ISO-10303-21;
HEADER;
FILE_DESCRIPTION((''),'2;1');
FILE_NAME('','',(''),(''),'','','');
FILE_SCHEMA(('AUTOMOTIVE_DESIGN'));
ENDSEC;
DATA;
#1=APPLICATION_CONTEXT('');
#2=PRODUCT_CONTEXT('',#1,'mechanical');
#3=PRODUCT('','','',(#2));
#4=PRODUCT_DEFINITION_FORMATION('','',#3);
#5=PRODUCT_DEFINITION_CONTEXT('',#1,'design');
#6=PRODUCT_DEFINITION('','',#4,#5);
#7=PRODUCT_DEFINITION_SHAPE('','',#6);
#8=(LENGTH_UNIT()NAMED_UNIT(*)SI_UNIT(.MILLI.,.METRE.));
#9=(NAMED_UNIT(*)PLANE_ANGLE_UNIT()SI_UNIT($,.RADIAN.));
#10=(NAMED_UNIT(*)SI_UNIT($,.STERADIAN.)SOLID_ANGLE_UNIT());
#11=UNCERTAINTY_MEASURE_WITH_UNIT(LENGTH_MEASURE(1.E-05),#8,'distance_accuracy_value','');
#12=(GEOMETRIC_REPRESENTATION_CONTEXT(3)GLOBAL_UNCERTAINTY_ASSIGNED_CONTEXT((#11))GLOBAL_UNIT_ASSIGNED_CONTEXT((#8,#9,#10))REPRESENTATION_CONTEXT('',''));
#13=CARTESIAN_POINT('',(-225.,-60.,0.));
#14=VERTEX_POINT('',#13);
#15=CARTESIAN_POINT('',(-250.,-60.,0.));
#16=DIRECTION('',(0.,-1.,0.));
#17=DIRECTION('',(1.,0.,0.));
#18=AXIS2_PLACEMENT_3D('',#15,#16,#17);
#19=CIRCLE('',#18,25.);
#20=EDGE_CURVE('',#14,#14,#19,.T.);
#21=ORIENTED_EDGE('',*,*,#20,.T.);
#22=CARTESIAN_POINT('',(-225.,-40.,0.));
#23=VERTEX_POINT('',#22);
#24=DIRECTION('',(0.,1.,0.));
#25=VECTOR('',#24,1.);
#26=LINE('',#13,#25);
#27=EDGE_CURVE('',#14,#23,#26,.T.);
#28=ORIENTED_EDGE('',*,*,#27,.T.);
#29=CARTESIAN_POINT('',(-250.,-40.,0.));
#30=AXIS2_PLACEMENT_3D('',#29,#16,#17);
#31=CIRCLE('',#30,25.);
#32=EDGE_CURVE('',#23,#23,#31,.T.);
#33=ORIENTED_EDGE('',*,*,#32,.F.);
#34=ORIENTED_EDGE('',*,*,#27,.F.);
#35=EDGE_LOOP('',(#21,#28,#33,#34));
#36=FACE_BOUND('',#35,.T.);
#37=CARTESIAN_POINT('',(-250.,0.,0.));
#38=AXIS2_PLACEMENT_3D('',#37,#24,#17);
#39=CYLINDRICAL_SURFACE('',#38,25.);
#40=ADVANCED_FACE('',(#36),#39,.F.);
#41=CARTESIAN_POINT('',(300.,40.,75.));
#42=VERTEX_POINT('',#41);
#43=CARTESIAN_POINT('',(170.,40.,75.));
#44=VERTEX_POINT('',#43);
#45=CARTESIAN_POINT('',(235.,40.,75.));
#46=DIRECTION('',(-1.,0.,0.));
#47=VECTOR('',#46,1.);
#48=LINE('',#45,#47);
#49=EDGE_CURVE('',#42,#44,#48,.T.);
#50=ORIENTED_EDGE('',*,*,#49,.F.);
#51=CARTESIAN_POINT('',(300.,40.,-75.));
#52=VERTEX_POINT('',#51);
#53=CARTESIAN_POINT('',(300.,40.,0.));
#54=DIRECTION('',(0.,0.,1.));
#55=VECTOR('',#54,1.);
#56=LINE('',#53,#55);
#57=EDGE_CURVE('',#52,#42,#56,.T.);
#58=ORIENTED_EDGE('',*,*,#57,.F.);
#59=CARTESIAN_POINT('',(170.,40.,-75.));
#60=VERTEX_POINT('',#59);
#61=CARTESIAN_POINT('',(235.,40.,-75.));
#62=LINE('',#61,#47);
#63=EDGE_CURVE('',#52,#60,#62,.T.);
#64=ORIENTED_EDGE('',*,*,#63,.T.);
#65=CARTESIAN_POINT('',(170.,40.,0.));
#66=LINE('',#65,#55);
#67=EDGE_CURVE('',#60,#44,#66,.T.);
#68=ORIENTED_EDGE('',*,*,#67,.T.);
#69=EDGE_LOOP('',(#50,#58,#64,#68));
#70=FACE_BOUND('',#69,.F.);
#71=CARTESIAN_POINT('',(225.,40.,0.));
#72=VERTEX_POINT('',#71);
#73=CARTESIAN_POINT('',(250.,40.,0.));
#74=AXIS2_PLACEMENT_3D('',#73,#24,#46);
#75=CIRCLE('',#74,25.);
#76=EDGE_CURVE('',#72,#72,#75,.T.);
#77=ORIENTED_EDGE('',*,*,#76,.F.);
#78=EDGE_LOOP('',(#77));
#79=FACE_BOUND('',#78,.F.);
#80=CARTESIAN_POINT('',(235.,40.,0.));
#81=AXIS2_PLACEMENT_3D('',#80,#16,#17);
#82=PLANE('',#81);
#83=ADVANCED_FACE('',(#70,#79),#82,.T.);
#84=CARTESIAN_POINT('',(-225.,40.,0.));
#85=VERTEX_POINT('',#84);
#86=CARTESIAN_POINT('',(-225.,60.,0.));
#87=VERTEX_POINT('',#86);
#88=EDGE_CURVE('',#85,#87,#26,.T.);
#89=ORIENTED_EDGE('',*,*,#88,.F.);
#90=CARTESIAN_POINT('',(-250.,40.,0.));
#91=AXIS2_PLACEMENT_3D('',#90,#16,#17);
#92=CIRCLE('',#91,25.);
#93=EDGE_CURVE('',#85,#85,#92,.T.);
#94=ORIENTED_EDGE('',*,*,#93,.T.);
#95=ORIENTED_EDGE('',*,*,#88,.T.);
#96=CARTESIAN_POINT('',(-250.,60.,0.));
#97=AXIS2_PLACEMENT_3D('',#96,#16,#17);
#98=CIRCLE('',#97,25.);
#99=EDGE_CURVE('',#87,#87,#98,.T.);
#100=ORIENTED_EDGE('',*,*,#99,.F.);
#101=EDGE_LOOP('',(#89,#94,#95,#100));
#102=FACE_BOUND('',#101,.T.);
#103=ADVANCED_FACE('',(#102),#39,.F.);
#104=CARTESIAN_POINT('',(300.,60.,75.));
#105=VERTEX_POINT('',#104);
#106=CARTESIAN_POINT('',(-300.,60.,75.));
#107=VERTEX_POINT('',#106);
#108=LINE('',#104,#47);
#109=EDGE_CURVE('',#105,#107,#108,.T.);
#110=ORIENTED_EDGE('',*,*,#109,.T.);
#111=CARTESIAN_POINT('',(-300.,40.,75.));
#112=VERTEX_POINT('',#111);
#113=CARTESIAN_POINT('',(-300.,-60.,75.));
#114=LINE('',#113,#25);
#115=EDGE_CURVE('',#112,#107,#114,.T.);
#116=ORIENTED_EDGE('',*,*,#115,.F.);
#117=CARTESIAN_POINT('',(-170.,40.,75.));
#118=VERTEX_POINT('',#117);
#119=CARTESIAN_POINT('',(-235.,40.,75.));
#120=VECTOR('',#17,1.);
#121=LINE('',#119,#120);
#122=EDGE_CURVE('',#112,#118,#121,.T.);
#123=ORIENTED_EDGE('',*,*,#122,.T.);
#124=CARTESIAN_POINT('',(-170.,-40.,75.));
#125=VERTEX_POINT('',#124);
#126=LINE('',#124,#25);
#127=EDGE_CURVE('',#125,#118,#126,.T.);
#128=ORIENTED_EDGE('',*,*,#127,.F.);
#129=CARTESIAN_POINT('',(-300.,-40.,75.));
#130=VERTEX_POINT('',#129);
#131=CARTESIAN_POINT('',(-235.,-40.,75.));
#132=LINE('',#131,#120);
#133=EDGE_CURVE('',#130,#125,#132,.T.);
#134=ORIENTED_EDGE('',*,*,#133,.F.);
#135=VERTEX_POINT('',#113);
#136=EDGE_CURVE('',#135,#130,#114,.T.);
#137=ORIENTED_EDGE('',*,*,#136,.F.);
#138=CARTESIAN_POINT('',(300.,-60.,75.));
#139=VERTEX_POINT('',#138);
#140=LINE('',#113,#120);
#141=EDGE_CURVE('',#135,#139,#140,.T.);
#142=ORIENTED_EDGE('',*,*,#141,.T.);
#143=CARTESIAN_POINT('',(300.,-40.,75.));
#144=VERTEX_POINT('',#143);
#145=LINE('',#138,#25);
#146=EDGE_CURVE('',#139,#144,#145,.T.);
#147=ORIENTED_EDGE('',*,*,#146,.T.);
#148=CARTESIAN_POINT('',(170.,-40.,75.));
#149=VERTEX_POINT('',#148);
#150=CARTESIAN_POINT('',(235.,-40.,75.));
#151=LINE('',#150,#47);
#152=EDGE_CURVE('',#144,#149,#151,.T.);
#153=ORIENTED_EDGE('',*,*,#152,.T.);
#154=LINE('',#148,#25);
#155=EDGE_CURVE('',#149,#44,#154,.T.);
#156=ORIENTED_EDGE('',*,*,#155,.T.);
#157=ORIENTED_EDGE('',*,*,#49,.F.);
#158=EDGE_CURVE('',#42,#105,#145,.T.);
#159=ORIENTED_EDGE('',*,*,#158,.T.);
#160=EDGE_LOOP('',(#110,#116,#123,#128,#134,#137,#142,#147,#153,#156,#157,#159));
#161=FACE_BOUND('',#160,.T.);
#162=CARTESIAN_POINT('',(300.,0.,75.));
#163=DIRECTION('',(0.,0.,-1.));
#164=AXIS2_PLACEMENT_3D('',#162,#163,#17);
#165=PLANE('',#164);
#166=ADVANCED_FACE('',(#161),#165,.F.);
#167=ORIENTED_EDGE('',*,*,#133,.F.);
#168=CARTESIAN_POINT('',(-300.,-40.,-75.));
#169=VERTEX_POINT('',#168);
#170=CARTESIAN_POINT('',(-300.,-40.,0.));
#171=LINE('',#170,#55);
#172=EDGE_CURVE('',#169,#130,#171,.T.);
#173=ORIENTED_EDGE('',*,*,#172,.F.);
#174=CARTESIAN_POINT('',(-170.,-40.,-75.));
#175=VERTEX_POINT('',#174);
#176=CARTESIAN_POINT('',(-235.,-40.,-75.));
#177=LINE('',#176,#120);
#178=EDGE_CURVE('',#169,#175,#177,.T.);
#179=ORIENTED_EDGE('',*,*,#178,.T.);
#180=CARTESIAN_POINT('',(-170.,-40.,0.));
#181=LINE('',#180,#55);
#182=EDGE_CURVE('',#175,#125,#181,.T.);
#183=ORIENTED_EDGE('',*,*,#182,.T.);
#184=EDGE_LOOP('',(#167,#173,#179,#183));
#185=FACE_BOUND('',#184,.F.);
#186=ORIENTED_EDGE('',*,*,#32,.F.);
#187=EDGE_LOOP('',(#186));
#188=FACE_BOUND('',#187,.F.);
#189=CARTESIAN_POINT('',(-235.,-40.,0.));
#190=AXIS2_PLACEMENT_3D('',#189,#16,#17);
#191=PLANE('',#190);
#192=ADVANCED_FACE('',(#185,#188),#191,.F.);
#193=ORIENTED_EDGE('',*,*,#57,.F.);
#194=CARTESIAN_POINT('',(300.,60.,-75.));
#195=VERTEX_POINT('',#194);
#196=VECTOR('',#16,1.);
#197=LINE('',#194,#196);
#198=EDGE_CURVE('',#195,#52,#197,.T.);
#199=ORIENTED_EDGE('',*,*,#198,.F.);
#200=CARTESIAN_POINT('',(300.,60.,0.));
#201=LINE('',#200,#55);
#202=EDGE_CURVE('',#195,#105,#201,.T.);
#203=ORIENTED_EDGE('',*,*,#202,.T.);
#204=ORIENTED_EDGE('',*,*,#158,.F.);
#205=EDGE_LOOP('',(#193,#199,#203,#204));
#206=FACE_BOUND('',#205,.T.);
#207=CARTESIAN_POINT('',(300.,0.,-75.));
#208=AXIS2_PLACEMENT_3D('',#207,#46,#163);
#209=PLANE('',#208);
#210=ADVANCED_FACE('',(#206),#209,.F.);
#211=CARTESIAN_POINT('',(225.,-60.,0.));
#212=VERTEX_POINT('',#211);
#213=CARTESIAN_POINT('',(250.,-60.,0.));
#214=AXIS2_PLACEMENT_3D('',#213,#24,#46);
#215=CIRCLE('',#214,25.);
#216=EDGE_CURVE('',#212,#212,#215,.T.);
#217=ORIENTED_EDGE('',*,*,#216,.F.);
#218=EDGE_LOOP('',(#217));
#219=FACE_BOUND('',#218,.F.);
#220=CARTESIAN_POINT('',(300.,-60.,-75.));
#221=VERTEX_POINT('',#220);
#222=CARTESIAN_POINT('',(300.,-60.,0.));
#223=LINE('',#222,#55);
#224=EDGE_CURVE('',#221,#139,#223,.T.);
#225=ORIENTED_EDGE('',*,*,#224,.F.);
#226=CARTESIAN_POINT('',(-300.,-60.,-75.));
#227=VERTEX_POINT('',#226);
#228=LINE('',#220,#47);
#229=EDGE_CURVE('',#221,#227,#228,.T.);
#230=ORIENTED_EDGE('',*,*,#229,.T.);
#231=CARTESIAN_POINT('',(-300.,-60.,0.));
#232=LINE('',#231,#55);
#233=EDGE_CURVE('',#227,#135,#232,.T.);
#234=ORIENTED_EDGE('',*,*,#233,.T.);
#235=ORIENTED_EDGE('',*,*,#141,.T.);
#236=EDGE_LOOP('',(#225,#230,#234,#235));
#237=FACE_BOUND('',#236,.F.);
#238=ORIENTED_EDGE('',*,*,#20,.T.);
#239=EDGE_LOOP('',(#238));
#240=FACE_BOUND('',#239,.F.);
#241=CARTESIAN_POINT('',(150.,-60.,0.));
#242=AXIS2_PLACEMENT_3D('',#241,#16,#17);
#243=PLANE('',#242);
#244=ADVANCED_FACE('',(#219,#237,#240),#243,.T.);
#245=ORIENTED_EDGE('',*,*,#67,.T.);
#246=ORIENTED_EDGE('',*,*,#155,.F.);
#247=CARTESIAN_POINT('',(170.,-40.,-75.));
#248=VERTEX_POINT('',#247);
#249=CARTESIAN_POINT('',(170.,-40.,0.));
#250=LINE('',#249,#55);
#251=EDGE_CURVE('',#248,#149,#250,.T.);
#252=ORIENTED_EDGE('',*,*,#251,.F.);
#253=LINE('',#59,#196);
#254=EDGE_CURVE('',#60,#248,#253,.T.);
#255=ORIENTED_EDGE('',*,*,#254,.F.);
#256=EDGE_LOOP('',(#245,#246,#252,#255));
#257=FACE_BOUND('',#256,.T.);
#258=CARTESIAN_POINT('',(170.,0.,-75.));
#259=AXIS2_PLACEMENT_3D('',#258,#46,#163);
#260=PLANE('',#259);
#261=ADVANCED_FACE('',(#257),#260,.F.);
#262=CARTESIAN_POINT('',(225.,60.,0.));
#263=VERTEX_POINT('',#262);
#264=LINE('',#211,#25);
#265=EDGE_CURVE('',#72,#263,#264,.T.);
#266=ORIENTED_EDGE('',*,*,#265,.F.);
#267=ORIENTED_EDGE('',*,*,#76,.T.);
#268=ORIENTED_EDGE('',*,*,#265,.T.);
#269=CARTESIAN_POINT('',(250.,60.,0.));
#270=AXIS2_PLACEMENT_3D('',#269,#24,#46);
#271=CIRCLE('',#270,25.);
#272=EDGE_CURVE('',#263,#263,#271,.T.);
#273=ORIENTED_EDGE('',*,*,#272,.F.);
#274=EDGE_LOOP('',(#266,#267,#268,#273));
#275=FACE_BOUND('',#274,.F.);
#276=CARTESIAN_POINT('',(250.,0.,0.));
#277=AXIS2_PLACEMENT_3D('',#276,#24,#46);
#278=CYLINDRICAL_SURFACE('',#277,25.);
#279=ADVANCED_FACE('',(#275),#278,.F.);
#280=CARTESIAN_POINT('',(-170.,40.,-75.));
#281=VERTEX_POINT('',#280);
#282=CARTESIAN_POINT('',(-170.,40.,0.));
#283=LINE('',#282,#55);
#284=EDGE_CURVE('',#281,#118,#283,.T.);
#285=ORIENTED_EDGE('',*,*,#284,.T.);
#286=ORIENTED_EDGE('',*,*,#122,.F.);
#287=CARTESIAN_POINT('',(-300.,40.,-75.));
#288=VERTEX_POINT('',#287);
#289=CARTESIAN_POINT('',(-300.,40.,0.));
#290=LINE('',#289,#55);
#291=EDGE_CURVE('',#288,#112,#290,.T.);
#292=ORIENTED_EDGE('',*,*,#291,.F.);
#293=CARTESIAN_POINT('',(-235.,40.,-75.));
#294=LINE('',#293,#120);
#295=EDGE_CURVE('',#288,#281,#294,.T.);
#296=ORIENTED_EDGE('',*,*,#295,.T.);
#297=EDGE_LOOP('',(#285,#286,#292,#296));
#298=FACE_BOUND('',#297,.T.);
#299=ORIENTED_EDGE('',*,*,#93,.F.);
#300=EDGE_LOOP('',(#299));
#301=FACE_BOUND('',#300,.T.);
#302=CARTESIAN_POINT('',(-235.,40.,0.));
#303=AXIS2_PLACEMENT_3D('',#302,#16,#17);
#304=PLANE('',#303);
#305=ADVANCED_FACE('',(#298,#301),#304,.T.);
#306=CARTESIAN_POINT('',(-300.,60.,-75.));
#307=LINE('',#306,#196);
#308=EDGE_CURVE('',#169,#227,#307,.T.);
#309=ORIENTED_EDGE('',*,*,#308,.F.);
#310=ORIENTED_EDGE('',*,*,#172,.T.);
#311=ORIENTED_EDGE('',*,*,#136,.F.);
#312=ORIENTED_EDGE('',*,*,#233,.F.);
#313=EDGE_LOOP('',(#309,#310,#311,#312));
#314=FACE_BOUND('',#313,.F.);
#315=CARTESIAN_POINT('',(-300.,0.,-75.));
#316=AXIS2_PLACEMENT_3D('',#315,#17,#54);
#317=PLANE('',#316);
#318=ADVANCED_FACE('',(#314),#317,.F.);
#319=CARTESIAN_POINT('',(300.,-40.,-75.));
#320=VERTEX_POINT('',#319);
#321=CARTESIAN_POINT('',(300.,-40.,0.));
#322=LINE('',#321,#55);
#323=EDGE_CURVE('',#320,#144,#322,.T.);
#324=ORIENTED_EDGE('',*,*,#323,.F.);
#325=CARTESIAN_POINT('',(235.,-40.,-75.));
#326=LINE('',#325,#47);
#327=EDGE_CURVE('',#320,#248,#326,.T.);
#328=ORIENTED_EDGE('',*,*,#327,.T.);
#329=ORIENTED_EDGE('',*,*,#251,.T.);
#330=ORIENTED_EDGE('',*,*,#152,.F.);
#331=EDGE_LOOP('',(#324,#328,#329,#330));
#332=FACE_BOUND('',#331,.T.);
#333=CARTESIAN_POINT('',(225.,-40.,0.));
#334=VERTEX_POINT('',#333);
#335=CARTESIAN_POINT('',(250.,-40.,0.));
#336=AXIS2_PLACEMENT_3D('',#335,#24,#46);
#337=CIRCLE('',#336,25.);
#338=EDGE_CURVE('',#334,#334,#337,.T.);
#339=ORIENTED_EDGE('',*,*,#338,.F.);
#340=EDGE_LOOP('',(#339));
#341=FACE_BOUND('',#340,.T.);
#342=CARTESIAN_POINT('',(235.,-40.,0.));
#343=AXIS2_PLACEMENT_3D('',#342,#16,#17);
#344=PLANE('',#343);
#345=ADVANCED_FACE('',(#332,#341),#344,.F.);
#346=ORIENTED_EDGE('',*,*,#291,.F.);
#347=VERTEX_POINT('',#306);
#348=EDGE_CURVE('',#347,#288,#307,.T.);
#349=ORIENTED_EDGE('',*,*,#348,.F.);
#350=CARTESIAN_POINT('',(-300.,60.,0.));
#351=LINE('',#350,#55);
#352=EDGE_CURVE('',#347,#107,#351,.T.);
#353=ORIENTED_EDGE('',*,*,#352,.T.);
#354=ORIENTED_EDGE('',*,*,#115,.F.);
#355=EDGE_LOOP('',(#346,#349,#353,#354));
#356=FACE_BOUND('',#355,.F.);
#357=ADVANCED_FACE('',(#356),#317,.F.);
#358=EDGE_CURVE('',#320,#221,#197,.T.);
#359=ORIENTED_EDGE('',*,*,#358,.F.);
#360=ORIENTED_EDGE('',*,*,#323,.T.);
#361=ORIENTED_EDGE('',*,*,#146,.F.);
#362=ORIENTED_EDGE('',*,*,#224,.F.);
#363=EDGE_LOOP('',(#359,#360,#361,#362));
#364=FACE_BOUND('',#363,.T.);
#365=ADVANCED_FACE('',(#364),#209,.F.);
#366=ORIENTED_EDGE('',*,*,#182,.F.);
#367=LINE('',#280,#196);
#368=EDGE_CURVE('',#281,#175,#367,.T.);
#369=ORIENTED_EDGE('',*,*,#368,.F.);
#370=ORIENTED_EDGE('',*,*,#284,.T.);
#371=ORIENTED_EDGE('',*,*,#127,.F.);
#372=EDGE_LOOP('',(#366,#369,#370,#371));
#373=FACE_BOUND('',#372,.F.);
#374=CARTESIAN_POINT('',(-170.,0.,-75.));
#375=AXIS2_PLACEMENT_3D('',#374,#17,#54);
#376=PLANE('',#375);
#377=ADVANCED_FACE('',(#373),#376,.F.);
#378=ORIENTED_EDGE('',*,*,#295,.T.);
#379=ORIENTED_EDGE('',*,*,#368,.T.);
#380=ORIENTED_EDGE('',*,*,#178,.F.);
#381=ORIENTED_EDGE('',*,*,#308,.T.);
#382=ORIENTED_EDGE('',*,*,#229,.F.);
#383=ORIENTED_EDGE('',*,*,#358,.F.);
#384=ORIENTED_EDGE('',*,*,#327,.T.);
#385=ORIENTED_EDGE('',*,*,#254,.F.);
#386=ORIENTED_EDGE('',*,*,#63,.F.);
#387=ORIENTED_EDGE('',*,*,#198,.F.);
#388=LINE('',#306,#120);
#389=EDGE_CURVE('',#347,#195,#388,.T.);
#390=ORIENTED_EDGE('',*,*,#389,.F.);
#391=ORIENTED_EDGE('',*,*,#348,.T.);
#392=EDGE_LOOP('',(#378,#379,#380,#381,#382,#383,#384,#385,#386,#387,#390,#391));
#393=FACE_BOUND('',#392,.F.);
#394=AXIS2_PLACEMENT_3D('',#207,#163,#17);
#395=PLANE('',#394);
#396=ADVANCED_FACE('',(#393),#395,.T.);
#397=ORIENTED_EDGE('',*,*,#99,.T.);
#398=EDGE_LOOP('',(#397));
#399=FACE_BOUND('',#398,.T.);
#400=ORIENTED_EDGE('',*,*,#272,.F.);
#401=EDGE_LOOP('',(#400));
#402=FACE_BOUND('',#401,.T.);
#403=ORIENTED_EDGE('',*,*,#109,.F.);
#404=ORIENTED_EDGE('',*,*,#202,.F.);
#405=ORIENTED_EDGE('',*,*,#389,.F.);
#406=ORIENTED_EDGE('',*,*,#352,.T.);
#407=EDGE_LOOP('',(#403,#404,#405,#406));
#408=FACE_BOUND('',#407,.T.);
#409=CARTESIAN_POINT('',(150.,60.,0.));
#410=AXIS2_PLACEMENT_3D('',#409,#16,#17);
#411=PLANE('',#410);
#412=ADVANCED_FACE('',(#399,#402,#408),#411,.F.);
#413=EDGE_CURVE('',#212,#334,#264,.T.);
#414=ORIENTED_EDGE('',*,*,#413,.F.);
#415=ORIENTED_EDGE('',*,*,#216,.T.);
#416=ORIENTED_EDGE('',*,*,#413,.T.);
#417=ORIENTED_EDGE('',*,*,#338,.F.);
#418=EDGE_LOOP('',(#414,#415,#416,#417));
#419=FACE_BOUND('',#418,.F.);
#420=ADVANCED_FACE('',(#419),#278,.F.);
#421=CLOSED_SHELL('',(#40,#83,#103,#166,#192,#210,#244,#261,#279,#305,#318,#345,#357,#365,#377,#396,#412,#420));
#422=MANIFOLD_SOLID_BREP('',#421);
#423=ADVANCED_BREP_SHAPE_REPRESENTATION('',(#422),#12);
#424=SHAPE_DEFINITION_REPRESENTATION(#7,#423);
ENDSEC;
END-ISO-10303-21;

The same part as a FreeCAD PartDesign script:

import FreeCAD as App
import Part
import Sketcher

V = App.Vector


def add_polygon(sketch, points):
    """Adds a closed chain of lines whose ends are joined by coincident constraints."""
    first, n = sketch.GeometryCount, len(points)
    for a, b in zip(points, points[1:] + points[:1]):
        sketch.addGeometry(Part.LineSegment(App.Vector(*a, 0), App.Vector(*b, 0)), False)
    for i in range(n):
        sketch.addConstraint(Sketcher.Constraint("Coincident", first + i, 2, first + (i + 1) % n, 1))

doc = App.newDocument("Part")
params = doc.addObject("Spreadsheet::Sheet", "Params")
for row, (alias, value) in enumerate([
    ("sketch1_diameter", "50 mm"),
    ("sketch1_width", "300 mm"),
    ("sketch1_height", "150 mm"),
    ("pad1_length", "120 mm"),
    ("sketch2_diameter", "50 mm"),
    ("sketch2_width", "130 mm"),
    ("sketch2_height", "150 mm"),
    ("pocket1_length", "80 mm"),
], start=1):
    params.set(f"A{row}", alias)
    params.set(f"B{row}", "=" + value)
    params.setAlias(f"B{row}", alias)

body = doc.addObject("PartDesign::Body", "Body")

sketch1 = doc.addObject("Sketcher::SketchObject", "Sketch")
body.addObject(sketch1)
sketch1.AttachmentSupport = (doc.XZ_Plane, [""])
sketch1.MapMode = "FlatFace"
add_polygon(sketch1, [(-300, 75), (-300, -75), (0, -75), (0, 75)])
sketch1.addGeometry(Part.Circle(V(-250, 0, 0), V(0, 0, 1), 25), False)
sketch1.addConstraint(Sketcher.Constraint("Vertical", 0))
sketch1.addConstraint(Sketcher.Constraint("Horizontal", 1))
sketch1.addConstraint(Sketcher.Constraint("Vertical", 2))
sketch1.addConstraint(Sketcher.Constraint("Horizontal", 3))
sketch1.addConstraint(Sketcher.Constraint("Symmetric", 1, 2, 2, 2, -1, 1))
sketch1.addConstraint(Sketcher.Constraint("PointOnObject", 4, 3, -1))
sketch1.addConstraint(Sketcher.Constraint("Diameter", 4, 50.0))
sketch1.addConstraint(Sketcher.Constraint("DistanceX", 1, 1, 1, 2, 300.0))
sketch1.addConstraint(Sketcher.Constraint("DistanceY", 0, 2, 0, 1, 150.0))
sketch1.addConstraint(Sketcher.Constraint("DistanceX", 4, 3, -1, 1, 250.0))
sketch1.setExpression("Constraints[10]", "Params.sketch1_diameter")
sketch1.setExpression("Constraints[11]", "Params.sketch1_width")
sketch1.setExpression("Constraints[12]", "Params.sketch1_height")
pad1 = doc.addObject("PartDesign::Pad", "Pad")
body.addObject(pad1)
pad1.Profile = sketch1
pad1.setExpression("Length", "Params.pad1_length")
pad1.Midplane = True

sketch2 = doc.addObject("Sketcher::SketchObject", "Sketch001")
body.addObject(sketch2)
sketch2.AttachmentSupport = (doc.XZ_Plane, [""])
sketch2.MapMode = "FlatFace"
add_polygon(sketch2, [(-300, 75), (-300, -75), (-170, -75), (-170, 75)])
sketch2.addGeometry(Part.Circle(V(-250, 0, 0), V(0, 0, 1), 25), False)
sketch2.addConstraint(Sketcher.Constraint("Vertical", 0))
sketch2.addConstraint(Sketcher.Constraint("Horizontal", 1))
sketch2.addConstraint(Sketcher.Constraint("Vertical", 2))
sketch2.addConstraint(Sketcher.Constraint("Horizontal", 3))
sketch2.addConstraint(Sketcher.Constraint("PointOnObject", 4, 3, -1))
sketch2.addConstraint(Sketcher.Constraint("Diameter", 4, 50.0))
sketch2.addConstraint(Sketcher.Constraint("DistanceX", 1, 1, 1, 2, 130.0))
sketch2.addConstraint(Sketcher.Constraint("DistanceY", 0, 2, 0, 1, 150.0))
sketch2.addConstraint(Sketcher.Constraint("DistanceX", 4, 3, -1, 1, 250.0))
sketch2.addConstraint(Sketcher.Constraint("DistanceX", 0, 2, -1, 1, 300.0))
sketch2.addConstraint(Sketcher.Constraint("DistanceY", 0, 2, -1, 1, 75.0))
sketch2.setExpression("Constraints[9]", "Params.sketch2_diameter")
sketch2.setExpression("Constraints[10]", "Params.sketch2_width")
sketch2.setExpression("Constraints[11]", "Params.sketch2_height")
pocket1 = doc.addObject("PartDesign::Pocket", "Pocket")
body.addObject(pocket1)
pocket1.Profile = sketch2
pocket1.setExpression("Length", "Params.pocket1_length")
pocket1.Midplane = True
body2 = doc.addObject("PartDesign::Body", "Body001")
doc.recompute()

body2.BaseFeature = body
doc.recompute()

mirroring = doc.addObject("Part::Mirroring", "Mirroring")
mirroring.Source = body
mirroring.Base = V(0, 0, 0)
mirroring.Normal = V(1, 0, 0)
body3 = doc.addObject("PartDesign::Body", "Body002")
body3.BaseFeature = mirroring
boolean = doc.addObject("PartDesign::Boolean", "Boolean")
body2.addObject(boolean)
boolean.Type = "Fuse"
boolean.addObjects([body3])
doc.recompute()
mirroring.Visibility = False

doc.recompute()
